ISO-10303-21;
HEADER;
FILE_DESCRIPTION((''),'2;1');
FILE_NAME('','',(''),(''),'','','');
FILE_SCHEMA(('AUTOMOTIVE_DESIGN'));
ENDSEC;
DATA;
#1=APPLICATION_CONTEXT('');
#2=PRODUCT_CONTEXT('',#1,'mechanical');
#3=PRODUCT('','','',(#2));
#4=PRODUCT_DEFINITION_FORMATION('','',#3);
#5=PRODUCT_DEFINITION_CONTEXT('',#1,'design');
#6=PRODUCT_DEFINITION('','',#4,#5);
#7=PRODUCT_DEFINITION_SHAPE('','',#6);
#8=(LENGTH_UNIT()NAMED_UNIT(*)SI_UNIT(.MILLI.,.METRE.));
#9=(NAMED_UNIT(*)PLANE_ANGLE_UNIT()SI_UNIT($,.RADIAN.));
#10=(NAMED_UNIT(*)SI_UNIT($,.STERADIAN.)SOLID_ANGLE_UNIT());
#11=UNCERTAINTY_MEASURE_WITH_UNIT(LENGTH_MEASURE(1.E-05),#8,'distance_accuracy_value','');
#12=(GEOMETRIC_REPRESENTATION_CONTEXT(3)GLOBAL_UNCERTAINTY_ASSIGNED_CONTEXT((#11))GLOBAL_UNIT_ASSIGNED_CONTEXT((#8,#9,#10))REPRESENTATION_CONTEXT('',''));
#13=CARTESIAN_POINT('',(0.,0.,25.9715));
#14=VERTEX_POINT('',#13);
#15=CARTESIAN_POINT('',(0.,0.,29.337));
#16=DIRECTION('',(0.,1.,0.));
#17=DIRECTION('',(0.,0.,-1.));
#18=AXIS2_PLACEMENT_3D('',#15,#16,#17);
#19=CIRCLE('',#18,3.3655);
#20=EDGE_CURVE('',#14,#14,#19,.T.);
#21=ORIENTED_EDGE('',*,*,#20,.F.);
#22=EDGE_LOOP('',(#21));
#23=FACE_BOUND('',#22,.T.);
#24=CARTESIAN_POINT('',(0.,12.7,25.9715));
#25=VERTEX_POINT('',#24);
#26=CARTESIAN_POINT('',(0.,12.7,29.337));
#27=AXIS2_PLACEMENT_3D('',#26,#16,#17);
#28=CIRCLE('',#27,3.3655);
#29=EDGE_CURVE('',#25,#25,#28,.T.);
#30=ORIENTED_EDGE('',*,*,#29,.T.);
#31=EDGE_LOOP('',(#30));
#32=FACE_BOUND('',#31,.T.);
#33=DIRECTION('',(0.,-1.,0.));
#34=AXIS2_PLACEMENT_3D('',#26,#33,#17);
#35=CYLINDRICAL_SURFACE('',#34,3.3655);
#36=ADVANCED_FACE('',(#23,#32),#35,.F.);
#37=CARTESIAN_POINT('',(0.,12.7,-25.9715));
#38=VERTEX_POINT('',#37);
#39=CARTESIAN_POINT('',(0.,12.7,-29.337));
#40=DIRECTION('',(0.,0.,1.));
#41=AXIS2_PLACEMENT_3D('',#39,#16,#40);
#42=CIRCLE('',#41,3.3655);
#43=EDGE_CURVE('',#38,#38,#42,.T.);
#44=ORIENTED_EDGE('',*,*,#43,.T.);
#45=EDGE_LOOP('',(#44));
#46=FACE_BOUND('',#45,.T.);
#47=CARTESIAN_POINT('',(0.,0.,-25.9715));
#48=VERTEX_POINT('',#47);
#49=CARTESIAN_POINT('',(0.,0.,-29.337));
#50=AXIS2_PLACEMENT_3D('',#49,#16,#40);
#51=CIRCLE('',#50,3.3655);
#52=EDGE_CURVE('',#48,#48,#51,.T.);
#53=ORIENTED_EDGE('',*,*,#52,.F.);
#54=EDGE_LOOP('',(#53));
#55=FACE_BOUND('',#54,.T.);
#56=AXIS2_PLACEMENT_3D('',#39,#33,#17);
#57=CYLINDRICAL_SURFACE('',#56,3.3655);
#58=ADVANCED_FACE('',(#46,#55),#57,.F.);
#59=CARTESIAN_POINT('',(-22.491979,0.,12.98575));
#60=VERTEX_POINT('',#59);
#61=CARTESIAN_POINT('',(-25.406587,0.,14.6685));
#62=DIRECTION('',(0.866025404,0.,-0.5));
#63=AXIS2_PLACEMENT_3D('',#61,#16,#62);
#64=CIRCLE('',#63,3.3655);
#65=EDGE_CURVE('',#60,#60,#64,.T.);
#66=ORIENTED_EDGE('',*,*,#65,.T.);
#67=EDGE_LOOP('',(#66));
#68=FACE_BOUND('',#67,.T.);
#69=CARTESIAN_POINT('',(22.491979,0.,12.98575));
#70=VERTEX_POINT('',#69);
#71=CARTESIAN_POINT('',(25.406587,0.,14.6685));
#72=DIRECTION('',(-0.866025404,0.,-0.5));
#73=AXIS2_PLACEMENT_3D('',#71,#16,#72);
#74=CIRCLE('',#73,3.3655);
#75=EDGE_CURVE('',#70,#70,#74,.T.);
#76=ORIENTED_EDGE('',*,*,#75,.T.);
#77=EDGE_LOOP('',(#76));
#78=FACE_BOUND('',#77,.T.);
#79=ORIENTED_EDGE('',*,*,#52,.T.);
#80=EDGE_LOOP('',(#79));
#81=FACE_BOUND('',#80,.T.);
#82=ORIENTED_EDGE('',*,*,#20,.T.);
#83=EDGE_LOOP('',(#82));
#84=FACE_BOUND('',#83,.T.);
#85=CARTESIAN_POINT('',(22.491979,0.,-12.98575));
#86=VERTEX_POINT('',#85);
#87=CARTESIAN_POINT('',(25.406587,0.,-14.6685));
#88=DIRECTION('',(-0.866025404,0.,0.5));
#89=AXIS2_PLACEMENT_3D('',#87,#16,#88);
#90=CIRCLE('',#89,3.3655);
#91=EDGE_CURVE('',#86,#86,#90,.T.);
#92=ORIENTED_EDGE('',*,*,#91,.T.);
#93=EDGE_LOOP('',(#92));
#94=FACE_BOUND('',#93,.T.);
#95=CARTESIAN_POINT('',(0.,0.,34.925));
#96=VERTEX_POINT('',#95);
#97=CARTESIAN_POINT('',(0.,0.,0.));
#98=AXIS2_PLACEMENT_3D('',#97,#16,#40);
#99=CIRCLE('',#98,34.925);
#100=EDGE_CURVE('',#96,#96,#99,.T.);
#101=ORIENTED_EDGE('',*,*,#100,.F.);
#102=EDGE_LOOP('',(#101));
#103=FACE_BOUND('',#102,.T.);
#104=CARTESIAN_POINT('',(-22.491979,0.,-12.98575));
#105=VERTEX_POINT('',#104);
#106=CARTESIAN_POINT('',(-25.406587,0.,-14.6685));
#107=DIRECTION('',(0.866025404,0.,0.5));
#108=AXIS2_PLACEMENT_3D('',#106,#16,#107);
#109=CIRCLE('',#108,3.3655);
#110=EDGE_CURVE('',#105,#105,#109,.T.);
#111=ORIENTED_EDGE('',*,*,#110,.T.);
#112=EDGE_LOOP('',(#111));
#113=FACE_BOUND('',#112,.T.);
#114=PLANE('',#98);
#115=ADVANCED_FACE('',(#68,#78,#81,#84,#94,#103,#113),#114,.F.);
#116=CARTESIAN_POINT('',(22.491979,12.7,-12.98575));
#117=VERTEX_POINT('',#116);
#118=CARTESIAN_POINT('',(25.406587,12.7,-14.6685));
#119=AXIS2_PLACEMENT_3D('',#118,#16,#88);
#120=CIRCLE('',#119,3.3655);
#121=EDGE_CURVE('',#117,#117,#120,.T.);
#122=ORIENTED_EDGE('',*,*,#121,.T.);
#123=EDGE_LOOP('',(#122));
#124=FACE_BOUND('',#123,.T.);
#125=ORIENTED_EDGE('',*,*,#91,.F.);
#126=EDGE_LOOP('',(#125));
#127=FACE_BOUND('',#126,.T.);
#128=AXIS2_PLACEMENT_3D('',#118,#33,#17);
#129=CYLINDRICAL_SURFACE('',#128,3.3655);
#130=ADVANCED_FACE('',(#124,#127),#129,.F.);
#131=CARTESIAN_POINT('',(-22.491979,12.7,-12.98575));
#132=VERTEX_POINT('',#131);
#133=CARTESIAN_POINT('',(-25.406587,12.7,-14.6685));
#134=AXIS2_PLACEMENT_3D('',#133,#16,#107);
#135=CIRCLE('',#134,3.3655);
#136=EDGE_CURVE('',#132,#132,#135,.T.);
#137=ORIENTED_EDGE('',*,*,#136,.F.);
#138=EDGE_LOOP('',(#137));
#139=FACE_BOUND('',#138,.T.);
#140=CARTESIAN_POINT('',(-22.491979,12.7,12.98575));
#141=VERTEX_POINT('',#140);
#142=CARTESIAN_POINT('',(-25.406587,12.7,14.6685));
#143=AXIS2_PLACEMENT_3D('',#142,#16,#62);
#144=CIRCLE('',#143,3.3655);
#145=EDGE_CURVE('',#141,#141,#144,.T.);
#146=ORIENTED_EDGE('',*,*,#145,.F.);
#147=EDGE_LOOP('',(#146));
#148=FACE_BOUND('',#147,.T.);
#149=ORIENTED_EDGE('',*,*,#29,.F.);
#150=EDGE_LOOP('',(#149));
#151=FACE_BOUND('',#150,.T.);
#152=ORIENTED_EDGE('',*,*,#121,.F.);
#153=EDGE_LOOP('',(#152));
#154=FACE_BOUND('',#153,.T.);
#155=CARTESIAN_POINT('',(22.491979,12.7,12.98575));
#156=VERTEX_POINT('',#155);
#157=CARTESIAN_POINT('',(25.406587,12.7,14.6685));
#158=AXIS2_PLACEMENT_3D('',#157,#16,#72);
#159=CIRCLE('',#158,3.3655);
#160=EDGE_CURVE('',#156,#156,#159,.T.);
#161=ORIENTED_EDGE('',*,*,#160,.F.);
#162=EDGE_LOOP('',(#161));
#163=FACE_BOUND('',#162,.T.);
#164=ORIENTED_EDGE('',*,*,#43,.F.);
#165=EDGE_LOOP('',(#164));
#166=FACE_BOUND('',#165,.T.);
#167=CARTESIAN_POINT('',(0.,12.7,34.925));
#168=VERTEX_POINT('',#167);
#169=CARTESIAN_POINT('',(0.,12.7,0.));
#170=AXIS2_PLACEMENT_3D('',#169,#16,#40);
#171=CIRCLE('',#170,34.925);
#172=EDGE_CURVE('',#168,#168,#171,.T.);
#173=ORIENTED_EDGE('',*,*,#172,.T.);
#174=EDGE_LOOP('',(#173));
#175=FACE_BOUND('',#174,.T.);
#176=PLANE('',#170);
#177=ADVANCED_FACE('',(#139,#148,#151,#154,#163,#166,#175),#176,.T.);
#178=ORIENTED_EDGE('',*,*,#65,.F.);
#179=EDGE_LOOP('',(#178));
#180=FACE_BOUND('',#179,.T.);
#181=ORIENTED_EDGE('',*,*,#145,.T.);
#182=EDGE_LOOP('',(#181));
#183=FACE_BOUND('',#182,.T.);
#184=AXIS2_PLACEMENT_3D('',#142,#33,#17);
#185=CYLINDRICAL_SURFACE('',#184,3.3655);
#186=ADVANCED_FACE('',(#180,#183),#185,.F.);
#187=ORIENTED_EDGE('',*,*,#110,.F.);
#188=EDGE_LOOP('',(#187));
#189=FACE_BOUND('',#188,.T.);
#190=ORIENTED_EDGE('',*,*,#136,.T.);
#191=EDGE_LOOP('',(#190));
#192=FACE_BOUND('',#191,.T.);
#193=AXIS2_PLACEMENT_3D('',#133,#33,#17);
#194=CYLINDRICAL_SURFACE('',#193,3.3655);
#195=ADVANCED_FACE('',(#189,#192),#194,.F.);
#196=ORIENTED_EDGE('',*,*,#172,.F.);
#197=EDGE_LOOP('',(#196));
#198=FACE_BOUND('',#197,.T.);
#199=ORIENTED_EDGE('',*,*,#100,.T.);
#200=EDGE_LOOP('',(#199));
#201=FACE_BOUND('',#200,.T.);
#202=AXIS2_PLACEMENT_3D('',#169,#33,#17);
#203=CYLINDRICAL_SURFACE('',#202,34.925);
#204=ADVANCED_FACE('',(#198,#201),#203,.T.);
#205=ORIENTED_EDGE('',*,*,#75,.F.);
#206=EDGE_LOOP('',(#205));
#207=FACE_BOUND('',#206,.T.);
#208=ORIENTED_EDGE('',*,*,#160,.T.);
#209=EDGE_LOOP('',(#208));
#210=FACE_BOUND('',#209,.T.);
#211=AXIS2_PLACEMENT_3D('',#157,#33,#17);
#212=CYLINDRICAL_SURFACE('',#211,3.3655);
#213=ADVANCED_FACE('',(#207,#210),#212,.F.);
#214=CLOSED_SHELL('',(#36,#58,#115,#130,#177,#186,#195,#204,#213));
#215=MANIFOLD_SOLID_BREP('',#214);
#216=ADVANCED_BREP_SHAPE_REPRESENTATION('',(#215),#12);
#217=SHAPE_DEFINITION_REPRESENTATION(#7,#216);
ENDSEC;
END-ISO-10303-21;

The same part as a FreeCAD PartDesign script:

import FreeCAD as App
import Part
import Sketcher

V = App.Vector
Q = App.Units.Quantity

doc = App.newDocument("Part")
body = doc.addObject("PartDesign::Body", "Body")

# Sketch on XZ plane
sketch1 = body.newObject("Sketcher::SketchObject", "Sketch")
sketch1.AttachmentSupport = (doc.getObject("XZ_Plane"), [""])
sketch1.MapMode = "FlatFace"
sketch1.addGeometry(Part.Circle(V(0, 0, 0), V(0, 0, 1), 35), False)
sketch1.addConstraint(Sketcher.Constraint("Coincident", 0, 3, -1, 1))
sketch1.addConstraint(Sketcher.Constraint("Diameter", 0, Q("2.75 in")))
pad1 = body.newObject("PartDesign::Pad", "Pad")
pad1.Profile = sketch1
pad1.Length = Q("0.5 in")
pad1.Reversed = True

# Sketch on XZ plane
sketch2 = body.newObject("Sketcher::SketchObject", "Sketch001")
sketch2.AttachmentSupport = (doc.getObject("XZ_Plane"), [""])
sketch2.MapMode = "FlatFace"
sketch2.addGeometry(Part.Circle(V(0, -29.3, 0), V(0, 0, 1), 3.4), False)
sketch2.addConstraint(Sketcher.Constraint("PointOnObject", 0, 3, -2))
sketch2.addConstraint(Sketcher.Constraint("Diameter", 0, Q("0.265 in")))
sketch2.addConstraint(Sketcher.Constraint("DistanceY", 0, 3, -1, 1, Q("1.155 in")))
pocket1 = body.newObject("PartDesign::Pocket", "Pocket")
pocket1.Profile = sketch2
pocket1.Length = Q("0.5 in")
doc.recompute()

polarpattern = body.newObject("PartDesign::PolarPattern", "PolarPattern")
polarpattern.Originals = [pocket1]
polarpattern.Axis = (doc.getObject("Y_Axis"), [""])
polarpattern.Angle = 360
polarpattern.Occurrences = 6
body.Tip = polarpattern

doc.recompute()
